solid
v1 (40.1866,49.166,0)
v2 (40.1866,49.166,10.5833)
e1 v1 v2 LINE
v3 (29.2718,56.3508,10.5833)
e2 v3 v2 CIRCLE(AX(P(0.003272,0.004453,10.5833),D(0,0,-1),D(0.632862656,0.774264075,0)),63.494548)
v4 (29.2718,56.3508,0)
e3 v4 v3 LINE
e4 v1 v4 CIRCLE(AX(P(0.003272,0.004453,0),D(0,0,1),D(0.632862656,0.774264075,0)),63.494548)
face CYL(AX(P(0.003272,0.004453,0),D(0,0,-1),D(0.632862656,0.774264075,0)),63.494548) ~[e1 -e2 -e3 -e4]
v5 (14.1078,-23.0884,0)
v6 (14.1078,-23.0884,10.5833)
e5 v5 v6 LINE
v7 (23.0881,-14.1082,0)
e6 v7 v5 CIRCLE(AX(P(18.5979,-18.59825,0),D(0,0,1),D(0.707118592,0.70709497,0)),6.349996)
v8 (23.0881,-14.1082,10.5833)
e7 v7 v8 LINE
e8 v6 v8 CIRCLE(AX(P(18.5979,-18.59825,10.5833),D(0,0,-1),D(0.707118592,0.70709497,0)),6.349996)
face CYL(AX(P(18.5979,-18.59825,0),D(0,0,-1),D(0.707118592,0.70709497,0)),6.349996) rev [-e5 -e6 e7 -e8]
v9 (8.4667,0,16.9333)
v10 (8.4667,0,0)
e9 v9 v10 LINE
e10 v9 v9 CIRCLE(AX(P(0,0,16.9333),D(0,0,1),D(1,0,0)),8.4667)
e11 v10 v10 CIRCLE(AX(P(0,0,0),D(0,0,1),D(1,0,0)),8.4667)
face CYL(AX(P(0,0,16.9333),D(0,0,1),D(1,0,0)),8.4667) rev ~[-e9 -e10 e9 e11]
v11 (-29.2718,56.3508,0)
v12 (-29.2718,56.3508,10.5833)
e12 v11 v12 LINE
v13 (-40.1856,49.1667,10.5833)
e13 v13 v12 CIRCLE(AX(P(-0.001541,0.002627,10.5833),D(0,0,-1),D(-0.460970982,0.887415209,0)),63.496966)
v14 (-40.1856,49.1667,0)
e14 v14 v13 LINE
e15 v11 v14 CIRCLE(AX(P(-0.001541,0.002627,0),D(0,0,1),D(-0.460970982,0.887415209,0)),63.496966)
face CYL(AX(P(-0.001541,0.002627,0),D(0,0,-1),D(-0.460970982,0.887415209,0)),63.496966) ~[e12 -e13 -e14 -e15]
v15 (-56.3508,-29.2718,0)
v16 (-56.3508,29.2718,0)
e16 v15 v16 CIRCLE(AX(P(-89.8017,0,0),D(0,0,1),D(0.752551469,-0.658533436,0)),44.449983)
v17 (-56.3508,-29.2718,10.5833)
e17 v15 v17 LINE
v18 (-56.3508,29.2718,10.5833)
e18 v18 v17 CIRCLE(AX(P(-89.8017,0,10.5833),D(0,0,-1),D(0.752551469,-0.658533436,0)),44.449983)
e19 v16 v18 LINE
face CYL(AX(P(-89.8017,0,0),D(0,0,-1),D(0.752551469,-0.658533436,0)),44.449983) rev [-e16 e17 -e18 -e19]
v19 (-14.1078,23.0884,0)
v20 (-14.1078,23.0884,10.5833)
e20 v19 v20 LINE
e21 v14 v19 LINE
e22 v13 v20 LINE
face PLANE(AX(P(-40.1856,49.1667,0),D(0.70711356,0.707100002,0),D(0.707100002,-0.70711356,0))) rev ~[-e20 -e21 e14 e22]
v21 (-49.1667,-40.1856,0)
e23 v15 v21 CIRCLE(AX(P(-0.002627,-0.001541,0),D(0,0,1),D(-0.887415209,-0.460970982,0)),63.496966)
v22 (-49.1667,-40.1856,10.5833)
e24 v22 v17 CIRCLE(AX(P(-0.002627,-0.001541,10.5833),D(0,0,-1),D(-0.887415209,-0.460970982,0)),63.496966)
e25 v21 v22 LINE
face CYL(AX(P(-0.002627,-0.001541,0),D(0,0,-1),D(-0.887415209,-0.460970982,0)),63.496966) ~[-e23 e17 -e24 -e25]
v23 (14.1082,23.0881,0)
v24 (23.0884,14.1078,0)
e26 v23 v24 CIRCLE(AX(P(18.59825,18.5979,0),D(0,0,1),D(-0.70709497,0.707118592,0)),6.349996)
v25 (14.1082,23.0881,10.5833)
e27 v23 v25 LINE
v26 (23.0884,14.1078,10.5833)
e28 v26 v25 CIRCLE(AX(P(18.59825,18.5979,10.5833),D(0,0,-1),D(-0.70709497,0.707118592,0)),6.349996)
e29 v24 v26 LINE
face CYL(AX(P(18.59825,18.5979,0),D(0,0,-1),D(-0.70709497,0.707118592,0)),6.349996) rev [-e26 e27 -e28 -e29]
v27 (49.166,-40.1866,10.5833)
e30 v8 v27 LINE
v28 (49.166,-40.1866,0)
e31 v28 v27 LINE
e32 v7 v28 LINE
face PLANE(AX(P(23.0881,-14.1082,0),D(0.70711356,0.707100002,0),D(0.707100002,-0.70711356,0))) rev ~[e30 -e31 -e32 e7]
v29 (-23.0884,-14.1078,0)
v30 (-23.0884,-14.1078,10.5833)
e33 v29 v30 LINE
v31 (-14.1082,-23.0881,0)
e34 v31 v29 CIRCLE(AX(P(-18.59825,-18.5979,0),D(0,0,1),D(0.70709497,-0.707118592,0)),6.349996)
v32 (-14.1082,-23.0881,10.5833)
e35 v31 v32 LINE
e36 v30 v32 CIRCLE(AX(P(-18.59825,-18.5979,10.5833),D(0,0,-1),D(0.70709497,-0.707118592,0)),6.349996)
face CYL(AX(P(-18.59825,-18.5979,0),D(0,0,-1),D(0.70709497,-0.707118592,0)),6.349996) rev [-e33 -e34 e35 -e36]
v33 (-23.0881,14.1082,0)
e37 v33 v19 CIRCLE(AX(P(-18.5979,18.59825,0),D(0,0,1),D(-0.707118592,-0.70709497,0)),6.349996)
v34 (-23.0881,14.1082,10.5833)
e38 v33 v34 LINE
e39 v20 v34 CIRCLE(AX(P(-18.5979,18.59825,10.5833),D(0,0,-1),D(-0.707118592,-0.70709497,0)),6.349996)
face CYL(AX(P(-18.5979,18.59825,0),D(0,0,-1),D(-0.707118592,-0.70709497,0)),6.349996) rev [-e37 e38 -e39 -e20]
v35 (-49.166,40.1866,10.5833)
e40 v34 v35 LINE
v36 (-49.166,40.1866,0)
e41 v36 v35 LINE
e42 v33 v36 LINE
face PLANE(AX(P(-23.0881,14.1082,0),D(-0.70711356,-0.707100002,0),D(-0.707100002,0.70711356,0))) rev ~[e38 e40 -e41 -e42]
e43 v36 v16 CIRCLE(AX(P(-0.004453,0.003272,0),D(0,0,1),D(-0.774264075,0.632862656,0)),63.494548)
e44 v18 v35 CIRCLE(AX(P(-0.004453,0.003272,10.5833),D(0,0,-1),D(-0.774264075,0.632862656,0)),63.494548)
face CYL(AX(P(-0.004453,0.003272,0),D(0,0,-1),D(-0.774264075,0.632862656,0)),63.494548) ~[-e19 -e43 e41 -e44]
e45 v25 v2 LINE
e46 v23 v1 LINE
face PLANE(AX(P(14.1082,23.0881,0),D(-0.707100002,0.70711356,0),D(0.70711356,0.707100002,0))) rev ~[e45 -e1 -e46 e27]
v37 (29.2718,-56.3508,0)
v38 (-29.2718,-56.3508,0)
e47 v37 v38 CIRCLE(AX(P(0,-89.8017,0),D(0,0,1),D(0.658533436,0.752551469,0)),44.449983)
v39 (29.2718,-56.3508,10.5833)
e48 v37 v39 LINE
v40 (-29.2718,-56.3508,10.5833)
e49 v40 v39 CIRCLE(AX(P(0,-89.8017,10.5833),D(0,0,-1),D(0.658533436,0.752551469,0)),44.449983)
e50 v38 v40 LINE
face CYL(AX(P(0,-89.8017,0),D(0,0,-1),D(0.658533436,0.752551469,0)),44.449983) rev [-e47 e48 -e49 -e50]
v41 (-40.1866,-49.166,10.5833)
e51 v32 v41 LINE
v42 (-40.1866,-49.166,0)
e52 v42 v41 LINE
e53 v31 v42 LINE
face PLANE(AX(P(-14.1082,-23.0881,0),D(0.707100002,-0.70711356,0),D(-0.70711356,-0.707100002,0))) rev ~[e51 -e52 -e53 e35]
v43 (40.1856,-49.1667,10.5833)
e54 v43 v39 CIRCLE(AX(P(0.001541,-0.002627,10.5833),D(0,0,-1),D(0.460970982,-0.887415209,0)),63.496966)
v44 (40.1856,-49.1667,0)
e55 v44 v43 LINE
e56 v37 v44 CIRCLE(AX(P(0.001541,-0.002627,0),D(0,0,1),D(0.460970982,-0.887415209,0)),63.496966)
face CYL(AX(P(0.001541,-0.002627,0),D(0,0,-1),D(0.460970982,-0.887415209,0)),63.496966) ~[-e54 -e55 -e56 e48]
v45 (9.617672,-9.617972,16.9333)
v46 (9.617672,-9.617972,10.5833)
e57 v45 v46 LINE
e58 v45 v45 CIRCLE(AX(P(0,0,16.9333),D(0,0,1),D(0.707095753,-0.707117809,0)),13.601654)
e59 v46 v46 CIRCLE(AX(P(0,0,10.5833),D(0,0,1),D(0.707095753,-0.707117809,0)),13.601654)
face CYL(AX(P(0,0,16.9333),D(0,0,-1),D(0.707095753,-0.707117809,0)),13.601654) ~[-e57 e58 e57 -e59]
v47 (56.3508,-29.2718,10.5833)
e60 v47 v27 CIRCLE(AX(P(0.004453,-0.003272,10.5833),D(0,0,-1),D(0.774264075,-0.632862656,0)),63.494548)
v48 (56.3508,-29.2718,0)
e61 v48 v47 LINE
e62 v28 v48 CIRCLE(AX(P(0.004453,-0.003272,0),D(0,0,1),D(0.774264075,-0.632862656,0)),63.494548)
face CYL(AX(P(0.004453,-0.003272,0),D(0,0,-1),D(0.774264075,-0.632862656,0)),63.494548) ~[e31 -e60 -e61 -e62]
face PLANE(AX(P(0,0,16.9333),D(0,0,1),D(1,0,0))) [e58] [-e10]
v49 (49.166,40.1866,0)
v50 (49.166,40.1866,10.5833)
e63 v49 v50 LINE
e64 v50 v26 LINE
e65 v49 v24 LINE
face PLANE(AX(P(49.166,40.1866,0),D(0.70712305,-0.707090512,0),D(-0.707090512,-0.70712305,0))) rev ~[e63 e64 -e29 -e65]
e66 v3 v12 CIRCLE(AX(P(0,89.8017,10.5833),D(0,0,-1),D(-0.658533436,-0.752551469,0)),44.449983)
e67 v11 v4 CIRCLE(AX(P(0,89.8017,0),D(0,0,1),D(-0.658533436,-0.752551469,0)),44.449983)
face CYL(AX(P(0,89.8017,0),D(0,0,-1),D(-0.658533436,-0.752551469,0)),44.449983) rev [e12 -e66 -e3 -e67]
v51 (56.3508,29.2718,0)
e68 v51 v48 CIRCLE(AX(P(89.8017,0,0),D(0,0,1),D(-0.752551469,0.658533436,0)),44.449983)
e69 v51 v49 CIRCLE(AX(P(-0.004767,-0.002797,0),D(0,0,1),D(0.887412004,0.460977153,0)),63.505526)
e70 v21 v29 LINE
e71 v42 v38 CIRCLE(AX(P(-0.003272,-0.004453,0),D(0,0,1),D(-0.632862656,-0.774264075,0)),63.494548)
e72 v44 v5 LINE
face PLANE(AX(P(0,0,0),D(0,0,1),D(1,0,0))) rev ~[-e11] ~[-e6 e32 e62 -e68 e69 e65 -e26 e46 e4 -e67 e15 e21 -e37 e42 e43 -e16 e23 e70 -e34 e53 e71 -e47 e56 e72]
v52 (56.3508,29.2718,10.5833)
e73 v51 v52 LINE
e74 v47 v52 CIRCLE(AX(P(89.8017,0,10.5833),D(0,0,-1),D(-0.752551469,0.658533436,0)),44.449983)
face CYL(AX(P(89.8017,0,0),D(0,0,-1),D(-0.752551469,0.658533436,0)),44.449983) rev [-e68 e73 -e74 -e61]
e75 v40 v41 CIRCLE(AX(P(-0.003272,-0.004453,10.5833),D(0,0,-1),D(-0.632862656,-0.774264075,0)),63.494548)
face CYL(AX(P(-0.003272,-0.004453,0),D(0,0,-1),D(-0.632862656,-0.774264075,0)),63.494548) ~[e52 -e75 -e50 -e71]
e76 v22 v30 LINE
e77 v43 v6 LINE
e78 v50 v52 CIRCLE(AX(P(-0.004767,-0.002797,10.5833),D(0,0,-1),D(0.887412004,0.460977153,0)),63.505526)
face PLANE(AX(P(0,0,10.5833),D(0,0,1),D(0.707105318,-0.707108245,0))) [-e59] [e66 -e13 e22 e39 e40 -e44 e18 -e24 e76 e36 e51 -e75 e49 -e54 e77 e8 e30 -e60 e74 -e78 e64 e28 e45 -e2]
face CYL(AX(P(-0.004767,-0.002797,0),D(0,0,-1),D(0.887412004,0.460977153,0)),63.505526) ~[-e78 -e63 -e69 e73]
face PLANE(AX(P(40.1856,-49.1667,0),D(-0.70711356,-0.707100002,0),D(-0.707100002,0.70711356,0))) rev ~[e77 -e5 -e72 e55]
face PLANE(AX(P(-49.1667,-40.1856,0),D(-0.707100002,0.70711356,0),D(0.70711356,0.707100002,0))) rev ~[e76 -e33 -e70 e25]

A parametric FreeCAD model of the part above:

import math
import FreeCAD as App
import Part
import Sketcher
from FreeCAD import Vector
Q = App.Units.Quantity

doc = App.newDocument("Part")
body = doc.addObject("PartDesign::Body", "Body")

sketch1 = body.newObject("Sketcher::SketchObject", "Sketch")
sketch1.AttachmentSupport = (doc.getObject("XY_Plane"), [""])
sketch1.MapMode = "FlatFace"
sketch1.addGeometry([
    Part.ArcOfCircle(Part.Circle(Vector(0.001541, -0.002627, 0), Vector(0, 0, 1), 63.496966), math.radians(-62.550219), math.radians(-50.739291)),
    Part.LineSegment(Vector(40.1856, -49.1667, 0), Vector(14.1078, -23.0884, 0)),
    Part.ArcOfCircle(Part.Circle(Vector(18.5979, -18.5983, 0), Vector(0, 0, 1), 6.350031), math.radians(44.999362), math.radians(225)),
    Part.LineSegment(Vector(23.0881, -14.1082, 0), Vector(49.166, -40.1866, 0)),
    Part.ArcOfCircle(Part.Circle(Vector(0.004453, -0.003272, 0), Vector(0, 0, 1), 63.494548), math.radians(-39.261641), math.radians(-27.449155)),
    Part.ArcOfCircle(Part.Circle(Vector(89.8017, 0, 0), Vector(0, 0, 1), 44.449983), math.radians(138.81188), math.radians(221.18812)),
    Part.ArcOfCircle(Part.Circle(Vector(-0.004767, -0.002797, 0), Vector(0, 0, 1), 63.505526), math.radians(27.450179), math.radians(39.260617)),
    Part.LineSegment(Vector(49.166, 40.1866, 0), Vector(23.0884, 14.1078, 0)),
    Part.ArcOfCircle(Part.Circle(Vector(18.5983, 18.5979, 0), Vector(0, 0, 1), 6.350031), math.radians(134.999362), math.radians(315)),
    Part.LineSegment(Vector(14.1082, 23.0881, 0), Vector(40.1866, 49.166, 0)),
    Part.ArcOfCircle(Part.Circle(Vector(0.003272, 0.004453, 0), Vector(0, 0, 1), 63.494548), math.radians(50.738359), math.radians(62.550845)),
    Part.ArcOfCircle(Part.Circle(Vector(0, 89.8017, 0), Vector(0, 0, 1), 44.449983), math.radians(-131.18812), math.radians(-48.81188)),
    Part.ArcOfCircle(Part.Circle(Vector(-0.001541, 0.002627, 0), Vector(0, 0, 1), 63.496966), math.radians(117.449781), math.radians(129.260709)),
    Part.LineSegment(Vector(-40.1856, 49.1667, 0), Vector(-14.1078, 23.0884, 0)),
    Part.ArcOfCircle(Part.Circle(Vector(-18.5979, 18.5983, 0), Vector(0, 0, 1), 6.350031), math.radians(-135.000638), math.radians(45)),
    Part.LineSegment(Vector(-23.0881, 14.1082, 0), Vector(-49.166, 40.1866, 0)),
    Part.ArcOfCircle(Part.Circle(Vector(-0.004453, 0.003272, 0), Vector(0, 0, 1), 63.494548), math.radians(140.738359), math.radians(152.550845)),
    Part.ArcOfCircle(Part.Circle(Vector(-89.8017, 0, 0), Vector(0, 0, 1), 44.449983), math.radians(-41.18812), math.radians(41.18812)),
    Part.ArcOfCircle(Part.Circle(Vector(-0.002627, -0.001541, 0), Vector(0, 0, 1), 63.496966), math.radians(-152.550219), math.radians(-140.739291)),
    Part.LineSegment(Vector(-49.1667, -40.1856, 0), Vector(-23.0884, -14.1078, 0)),
    Part.ArcOfCircle(Part.Circle(Vector(-18.5983, -18.5979, 0), Vector(0, 0, 1), 6.350031), math.radians(-45.000638), math.radians(135)),
    Part.LineSegment(Vector(-14.1082, -23.0881, 0), Vector(-40.1866, -49.166, 0)),
    Part.ArcOfCircle(Part.Circle(Vector(-0.003272, -0.004453, 0), Vector(0, 0, 1), 63.494548), math.radians(-129.261641), math.radians(-117.449155)),
    Part.ArcOfCircle(Part.Circle(Vector(0, -89.8017, 0), Vector(0, 0, 1), 44.449983), math.radians(48.81188), math.radians(131.18812)),
], False)
sketch1.addConstraint([
    Sketcher.Constraint("Coincident", 0, 2, 1, 1),
    Sketcher.Constraint("Tangent", 1, 2, 2, 2),
    Sketcher.Constraint("Tangent", 2, 1, 3, 1),
    Sketcher.Constraint("Coincident", 3, 2, 4, 1),
    Sketcher.Constraint("Coincident", 4, 2, 5, 2),
    Sketcher.Constraint("Coincident", 5, 1, 6, 1),
    Sketcher.Constraint("Coincident", 6, 2, 7, 1),
    Sketcher.Constraint("Tangent", 7, 2, 8, 2),
    Sketcher.Constraint("Tangent", 8, 1, 9, 1),
    Sketcher.Constraint("Coincident", 9, 2, 10, 1),
    Sketcher.Constraint("Coincident", 10, 2, 11, 2),
    Sketcher.Constraint("Coincident", 11, 1, 12, 1),
    Sketcher.Constraint("Coincident", 12, 2, 13, 1),
    Sketcher.Constraint("Tangent", 13, 2, 14, 2),
    Sketcher.Constraint("Tangent", 14, 1, 15, 1),
    Sketcher.Constraint("Coincident", 15, 2, 16, 1),
    Sketcher.Constraint("Coincident", 16, 2, 17, 2),
    Sketcher.Constraint("Coincident", 17, 1, 18, 1),
    Sketcher.Constraint("Coincident", 18, 2, 19, 1),
    Sketcher.Constraint("Tangent", 19, 2, 20, 2),
    Sketcher.Constraint("Tangent", 20, 1, 21, 1),
    Sketcher.Constraint("Coincident", 21, 2, 22, 1),
    Sketcher.Constraint("Coincident", 22, 2, 23, 2),
    Sketcher.Constraint("Coincident", 23, 1, 0, 1),
    Sketcher.Constraint("Equal", 2, 8),
    Sketcher.Constraint("Equal", 4, 10),
    Sketcher.Constraint("Equal", 5, 11),
    Sketcher.Constraint("Equal", 0, 12),
    Sketcher.Constraint("Equal", 8, 14),
    Sketcher.Constraint("Equal", 10, 16),
    Sketcher.Constraint("Equal", 11, 17),
    Sketcher.Constraint("Equal", 12, 18),
    Sketcher.Constraint("Equal", 14, 20),
    Sketcher.Constraint("Equal", 16, 22),
    Sketcher.Constraint("Equal", 17, 23),
    Sketcher.Constraint("Symmetric", 0, 3, 12, 3, -1, 1),
    Sketcher.Constraint("Symmetric", 2, 3, 14, 3, -1, 1),
    Sketcher.Constraint("Symmetric", 4, 3, 16, 3, -1, 1),
    Sketcher.Constraint("Symmetric", 5, 3, 17, 3, -1, 1),
    Sketcher.Constraint("Symmetric", 8, 3, 20, 3, -1, 1),
    Sketcher.Constraint("Symmetric", 10, 3, 22, 3, -1, 1),
    Sketcher.Constraint("Symmetric", 11, 3, 23, 3, -1, 1),
    Sketcher.Constraint("Symmetric", 10, 2, 11, 1, -2),
    Sketcher.Constraint("Symmetric", 6, 2, 15, 2, -2),
    Sketcher.Constraint("Symmetric", 5, 1, 16, 2, -2),
    Sketcher.Constraint("Parallel", 1, 3),
    Sketcher.Constraint("Perpendicular", 3, 7),
    Sketcher.Constraint("Parallel", 7, 9),
    Sketcher.Constraint("Perpendicular", 9, 13),
    Sketcher.Constraint("Parallel", 13, 15),
    Sketcher.Constraint("Perpendicular", 15, 19),
    Sketcher.Constraint("Parallel", 19, 21),
    Sketcher.Constraint("Horizontal", 0, 3, 6, 3),
    Sketcher.Constraint("Horizontal", 4, 2, 17, 1),
    Sketcher.Constraint("Equal", 1, 3),
    Sketcher.Constraint("Equal", 3, 7),
    Sketcher.Constraint("Equal", 7, 9),
    Sketcher.Constraint("Equal", 15, 19),
    Sketcher.Constraint("Radius", 2, Q("0.25 in")),
    Sketcher.Constraint("Radius", 5, Q("1.75 in")),
    Sketcher.Constraint("Angle", 1, Q("134.9995 deg")),
    Sketcher.Constraint("DistanceX", -1, 1, 5, 3, Q("3.5355 in")),
    Sketcher.Constraint("DistanceY", -1, 1, 11, 3, Q("3.5355 in")),
    Sketcher.Constraint("Radius", 0, 63.497),
    Sketcher.Constraint("Radius", 4, 63.4945),
    Sketcher.Constraint("Radius", 6, 63.5055),
    Sketcher.Constraint("DistanceY", 1, 2, -1, 1, Q("0.909 in")),
    Sketcher.Constraint("DistanceX", -1, 1, 7, 2, Q("0.909 in")),
    Sketcher.Constraint("DistanceY", 4, 2, 2, 1, Q("0.597 in")),
    Sketcher.Constraint("DistanceY", 18, 2, 6, 3, Q("1.582 in")),
])
pad1 = body.newObject("PartDesign::Pad", "Pad")
pad1.Profile = sketch1
pad1.Length = 16.9333

sketch2 = body.newObject("Sketcher::SketchObject", "Sketch001")
sketch2.AttachmentSupport = (doc.getObject("XY_Plane"), [""])
sketch2.MapMode = "FlatFace"
sketch2.AttachmentOffset = App.Placement(Vector(0, 0, 16.9333), App.Rotation())
sketch2.addGeometry(Part.Circle(Vector(0, 0, 0), Vector(0, 0, 1), 8), False)
sketch2.addConstraint([
    Sketcher.Constraint("Coincident", 0, 3, -1, 1),
    Sketcher.Constraint("Diameter", 0, 16.9334),
])
pocket1 = body.newObject("PartDesign::Pocket", "Pocket")
pocket1.Profile = sketch2
pocket1.Type = "ThroughAll"

sketch3 = body.newObject("Sketcher::SketchObject", "Sketch002")
sketch3.Placement = App.Placement(Vector(14.1078, -14.1081, 0), App.Rotation(Vector(-0.707106781, 0.707106781, 0), Vector(0, 0, 0.999999999), Vector(0.707106781, 0.707106781, 0), "ZXY"))
sketch3.addGeometry([
    Part.LineSegment(Vector(-83, 11, 0), Vector(6, 11, 0)),
    Part.LineSegment(Vector(6, 11, 0), Vector(6, 17, 0)),
    Part.LineSegment(Vector(6, 17, 0), Vector(-83, 17, 0)),
    Part.LineSegment(Vector(-83, 17, 0), Vector(-83, 11, 0)),
], False)
sketch3.addGeometry(Part.LineSegment(Vector(20, 11, 0), Vector(20, 17, 0)), True)
sketch3.addConstraint([
    Sketcher.Constraint("Coincident", 0, 2, 1, 1),
    Sketcher.Constraint("Coincident", 1, 2, 2, 1),
    Sketcher.Constraint("Coincident", 2, 2, 3, 1),
    Sketcher.Constraint("Coincident", 3, 2, 0, 1),
    Sketcher.Constraint("Horizontal", 0),
    Sketcher.Constraint("Vertical", 1),
    Sketcher.Constraint("Horizontal", 2),
    Sketcher.Constraint("Vertical", 3),
    Sketcher.Constraint("Vertical", 4),
    Sketcher.Constraint("Horizontal", 3, 2, 4, 1),
    Sketcher.Constraint("Horizontal", 2, 2, 4, 2),
    Sketcher.Constraint("DistanceY", 1, 1, 1, 2, Q("0.25 in")),
    Sketcher.Constraint("DistanceX", -1, 1, 0, 2, Q("0.25 in")),
    Sketcher.Constraint("DistanceX", 0, 1, 0, 2, Q("3.5 in")),
    Sketcher.Constraint("DistanceX", -1, 1, 4, 1, Q("0.7855 in")),
    Sketcher.Constraint("DistanceY", -1, 1, 0, 2, 10.5833),
])
groove = body.newObject("PartDesign::Groove", "Groove")
groove.Profile = sketch3
groove.ReferenceAxis = (sketch3, ["Axis0"])
groove.Angle = 360

doc.recompute()
